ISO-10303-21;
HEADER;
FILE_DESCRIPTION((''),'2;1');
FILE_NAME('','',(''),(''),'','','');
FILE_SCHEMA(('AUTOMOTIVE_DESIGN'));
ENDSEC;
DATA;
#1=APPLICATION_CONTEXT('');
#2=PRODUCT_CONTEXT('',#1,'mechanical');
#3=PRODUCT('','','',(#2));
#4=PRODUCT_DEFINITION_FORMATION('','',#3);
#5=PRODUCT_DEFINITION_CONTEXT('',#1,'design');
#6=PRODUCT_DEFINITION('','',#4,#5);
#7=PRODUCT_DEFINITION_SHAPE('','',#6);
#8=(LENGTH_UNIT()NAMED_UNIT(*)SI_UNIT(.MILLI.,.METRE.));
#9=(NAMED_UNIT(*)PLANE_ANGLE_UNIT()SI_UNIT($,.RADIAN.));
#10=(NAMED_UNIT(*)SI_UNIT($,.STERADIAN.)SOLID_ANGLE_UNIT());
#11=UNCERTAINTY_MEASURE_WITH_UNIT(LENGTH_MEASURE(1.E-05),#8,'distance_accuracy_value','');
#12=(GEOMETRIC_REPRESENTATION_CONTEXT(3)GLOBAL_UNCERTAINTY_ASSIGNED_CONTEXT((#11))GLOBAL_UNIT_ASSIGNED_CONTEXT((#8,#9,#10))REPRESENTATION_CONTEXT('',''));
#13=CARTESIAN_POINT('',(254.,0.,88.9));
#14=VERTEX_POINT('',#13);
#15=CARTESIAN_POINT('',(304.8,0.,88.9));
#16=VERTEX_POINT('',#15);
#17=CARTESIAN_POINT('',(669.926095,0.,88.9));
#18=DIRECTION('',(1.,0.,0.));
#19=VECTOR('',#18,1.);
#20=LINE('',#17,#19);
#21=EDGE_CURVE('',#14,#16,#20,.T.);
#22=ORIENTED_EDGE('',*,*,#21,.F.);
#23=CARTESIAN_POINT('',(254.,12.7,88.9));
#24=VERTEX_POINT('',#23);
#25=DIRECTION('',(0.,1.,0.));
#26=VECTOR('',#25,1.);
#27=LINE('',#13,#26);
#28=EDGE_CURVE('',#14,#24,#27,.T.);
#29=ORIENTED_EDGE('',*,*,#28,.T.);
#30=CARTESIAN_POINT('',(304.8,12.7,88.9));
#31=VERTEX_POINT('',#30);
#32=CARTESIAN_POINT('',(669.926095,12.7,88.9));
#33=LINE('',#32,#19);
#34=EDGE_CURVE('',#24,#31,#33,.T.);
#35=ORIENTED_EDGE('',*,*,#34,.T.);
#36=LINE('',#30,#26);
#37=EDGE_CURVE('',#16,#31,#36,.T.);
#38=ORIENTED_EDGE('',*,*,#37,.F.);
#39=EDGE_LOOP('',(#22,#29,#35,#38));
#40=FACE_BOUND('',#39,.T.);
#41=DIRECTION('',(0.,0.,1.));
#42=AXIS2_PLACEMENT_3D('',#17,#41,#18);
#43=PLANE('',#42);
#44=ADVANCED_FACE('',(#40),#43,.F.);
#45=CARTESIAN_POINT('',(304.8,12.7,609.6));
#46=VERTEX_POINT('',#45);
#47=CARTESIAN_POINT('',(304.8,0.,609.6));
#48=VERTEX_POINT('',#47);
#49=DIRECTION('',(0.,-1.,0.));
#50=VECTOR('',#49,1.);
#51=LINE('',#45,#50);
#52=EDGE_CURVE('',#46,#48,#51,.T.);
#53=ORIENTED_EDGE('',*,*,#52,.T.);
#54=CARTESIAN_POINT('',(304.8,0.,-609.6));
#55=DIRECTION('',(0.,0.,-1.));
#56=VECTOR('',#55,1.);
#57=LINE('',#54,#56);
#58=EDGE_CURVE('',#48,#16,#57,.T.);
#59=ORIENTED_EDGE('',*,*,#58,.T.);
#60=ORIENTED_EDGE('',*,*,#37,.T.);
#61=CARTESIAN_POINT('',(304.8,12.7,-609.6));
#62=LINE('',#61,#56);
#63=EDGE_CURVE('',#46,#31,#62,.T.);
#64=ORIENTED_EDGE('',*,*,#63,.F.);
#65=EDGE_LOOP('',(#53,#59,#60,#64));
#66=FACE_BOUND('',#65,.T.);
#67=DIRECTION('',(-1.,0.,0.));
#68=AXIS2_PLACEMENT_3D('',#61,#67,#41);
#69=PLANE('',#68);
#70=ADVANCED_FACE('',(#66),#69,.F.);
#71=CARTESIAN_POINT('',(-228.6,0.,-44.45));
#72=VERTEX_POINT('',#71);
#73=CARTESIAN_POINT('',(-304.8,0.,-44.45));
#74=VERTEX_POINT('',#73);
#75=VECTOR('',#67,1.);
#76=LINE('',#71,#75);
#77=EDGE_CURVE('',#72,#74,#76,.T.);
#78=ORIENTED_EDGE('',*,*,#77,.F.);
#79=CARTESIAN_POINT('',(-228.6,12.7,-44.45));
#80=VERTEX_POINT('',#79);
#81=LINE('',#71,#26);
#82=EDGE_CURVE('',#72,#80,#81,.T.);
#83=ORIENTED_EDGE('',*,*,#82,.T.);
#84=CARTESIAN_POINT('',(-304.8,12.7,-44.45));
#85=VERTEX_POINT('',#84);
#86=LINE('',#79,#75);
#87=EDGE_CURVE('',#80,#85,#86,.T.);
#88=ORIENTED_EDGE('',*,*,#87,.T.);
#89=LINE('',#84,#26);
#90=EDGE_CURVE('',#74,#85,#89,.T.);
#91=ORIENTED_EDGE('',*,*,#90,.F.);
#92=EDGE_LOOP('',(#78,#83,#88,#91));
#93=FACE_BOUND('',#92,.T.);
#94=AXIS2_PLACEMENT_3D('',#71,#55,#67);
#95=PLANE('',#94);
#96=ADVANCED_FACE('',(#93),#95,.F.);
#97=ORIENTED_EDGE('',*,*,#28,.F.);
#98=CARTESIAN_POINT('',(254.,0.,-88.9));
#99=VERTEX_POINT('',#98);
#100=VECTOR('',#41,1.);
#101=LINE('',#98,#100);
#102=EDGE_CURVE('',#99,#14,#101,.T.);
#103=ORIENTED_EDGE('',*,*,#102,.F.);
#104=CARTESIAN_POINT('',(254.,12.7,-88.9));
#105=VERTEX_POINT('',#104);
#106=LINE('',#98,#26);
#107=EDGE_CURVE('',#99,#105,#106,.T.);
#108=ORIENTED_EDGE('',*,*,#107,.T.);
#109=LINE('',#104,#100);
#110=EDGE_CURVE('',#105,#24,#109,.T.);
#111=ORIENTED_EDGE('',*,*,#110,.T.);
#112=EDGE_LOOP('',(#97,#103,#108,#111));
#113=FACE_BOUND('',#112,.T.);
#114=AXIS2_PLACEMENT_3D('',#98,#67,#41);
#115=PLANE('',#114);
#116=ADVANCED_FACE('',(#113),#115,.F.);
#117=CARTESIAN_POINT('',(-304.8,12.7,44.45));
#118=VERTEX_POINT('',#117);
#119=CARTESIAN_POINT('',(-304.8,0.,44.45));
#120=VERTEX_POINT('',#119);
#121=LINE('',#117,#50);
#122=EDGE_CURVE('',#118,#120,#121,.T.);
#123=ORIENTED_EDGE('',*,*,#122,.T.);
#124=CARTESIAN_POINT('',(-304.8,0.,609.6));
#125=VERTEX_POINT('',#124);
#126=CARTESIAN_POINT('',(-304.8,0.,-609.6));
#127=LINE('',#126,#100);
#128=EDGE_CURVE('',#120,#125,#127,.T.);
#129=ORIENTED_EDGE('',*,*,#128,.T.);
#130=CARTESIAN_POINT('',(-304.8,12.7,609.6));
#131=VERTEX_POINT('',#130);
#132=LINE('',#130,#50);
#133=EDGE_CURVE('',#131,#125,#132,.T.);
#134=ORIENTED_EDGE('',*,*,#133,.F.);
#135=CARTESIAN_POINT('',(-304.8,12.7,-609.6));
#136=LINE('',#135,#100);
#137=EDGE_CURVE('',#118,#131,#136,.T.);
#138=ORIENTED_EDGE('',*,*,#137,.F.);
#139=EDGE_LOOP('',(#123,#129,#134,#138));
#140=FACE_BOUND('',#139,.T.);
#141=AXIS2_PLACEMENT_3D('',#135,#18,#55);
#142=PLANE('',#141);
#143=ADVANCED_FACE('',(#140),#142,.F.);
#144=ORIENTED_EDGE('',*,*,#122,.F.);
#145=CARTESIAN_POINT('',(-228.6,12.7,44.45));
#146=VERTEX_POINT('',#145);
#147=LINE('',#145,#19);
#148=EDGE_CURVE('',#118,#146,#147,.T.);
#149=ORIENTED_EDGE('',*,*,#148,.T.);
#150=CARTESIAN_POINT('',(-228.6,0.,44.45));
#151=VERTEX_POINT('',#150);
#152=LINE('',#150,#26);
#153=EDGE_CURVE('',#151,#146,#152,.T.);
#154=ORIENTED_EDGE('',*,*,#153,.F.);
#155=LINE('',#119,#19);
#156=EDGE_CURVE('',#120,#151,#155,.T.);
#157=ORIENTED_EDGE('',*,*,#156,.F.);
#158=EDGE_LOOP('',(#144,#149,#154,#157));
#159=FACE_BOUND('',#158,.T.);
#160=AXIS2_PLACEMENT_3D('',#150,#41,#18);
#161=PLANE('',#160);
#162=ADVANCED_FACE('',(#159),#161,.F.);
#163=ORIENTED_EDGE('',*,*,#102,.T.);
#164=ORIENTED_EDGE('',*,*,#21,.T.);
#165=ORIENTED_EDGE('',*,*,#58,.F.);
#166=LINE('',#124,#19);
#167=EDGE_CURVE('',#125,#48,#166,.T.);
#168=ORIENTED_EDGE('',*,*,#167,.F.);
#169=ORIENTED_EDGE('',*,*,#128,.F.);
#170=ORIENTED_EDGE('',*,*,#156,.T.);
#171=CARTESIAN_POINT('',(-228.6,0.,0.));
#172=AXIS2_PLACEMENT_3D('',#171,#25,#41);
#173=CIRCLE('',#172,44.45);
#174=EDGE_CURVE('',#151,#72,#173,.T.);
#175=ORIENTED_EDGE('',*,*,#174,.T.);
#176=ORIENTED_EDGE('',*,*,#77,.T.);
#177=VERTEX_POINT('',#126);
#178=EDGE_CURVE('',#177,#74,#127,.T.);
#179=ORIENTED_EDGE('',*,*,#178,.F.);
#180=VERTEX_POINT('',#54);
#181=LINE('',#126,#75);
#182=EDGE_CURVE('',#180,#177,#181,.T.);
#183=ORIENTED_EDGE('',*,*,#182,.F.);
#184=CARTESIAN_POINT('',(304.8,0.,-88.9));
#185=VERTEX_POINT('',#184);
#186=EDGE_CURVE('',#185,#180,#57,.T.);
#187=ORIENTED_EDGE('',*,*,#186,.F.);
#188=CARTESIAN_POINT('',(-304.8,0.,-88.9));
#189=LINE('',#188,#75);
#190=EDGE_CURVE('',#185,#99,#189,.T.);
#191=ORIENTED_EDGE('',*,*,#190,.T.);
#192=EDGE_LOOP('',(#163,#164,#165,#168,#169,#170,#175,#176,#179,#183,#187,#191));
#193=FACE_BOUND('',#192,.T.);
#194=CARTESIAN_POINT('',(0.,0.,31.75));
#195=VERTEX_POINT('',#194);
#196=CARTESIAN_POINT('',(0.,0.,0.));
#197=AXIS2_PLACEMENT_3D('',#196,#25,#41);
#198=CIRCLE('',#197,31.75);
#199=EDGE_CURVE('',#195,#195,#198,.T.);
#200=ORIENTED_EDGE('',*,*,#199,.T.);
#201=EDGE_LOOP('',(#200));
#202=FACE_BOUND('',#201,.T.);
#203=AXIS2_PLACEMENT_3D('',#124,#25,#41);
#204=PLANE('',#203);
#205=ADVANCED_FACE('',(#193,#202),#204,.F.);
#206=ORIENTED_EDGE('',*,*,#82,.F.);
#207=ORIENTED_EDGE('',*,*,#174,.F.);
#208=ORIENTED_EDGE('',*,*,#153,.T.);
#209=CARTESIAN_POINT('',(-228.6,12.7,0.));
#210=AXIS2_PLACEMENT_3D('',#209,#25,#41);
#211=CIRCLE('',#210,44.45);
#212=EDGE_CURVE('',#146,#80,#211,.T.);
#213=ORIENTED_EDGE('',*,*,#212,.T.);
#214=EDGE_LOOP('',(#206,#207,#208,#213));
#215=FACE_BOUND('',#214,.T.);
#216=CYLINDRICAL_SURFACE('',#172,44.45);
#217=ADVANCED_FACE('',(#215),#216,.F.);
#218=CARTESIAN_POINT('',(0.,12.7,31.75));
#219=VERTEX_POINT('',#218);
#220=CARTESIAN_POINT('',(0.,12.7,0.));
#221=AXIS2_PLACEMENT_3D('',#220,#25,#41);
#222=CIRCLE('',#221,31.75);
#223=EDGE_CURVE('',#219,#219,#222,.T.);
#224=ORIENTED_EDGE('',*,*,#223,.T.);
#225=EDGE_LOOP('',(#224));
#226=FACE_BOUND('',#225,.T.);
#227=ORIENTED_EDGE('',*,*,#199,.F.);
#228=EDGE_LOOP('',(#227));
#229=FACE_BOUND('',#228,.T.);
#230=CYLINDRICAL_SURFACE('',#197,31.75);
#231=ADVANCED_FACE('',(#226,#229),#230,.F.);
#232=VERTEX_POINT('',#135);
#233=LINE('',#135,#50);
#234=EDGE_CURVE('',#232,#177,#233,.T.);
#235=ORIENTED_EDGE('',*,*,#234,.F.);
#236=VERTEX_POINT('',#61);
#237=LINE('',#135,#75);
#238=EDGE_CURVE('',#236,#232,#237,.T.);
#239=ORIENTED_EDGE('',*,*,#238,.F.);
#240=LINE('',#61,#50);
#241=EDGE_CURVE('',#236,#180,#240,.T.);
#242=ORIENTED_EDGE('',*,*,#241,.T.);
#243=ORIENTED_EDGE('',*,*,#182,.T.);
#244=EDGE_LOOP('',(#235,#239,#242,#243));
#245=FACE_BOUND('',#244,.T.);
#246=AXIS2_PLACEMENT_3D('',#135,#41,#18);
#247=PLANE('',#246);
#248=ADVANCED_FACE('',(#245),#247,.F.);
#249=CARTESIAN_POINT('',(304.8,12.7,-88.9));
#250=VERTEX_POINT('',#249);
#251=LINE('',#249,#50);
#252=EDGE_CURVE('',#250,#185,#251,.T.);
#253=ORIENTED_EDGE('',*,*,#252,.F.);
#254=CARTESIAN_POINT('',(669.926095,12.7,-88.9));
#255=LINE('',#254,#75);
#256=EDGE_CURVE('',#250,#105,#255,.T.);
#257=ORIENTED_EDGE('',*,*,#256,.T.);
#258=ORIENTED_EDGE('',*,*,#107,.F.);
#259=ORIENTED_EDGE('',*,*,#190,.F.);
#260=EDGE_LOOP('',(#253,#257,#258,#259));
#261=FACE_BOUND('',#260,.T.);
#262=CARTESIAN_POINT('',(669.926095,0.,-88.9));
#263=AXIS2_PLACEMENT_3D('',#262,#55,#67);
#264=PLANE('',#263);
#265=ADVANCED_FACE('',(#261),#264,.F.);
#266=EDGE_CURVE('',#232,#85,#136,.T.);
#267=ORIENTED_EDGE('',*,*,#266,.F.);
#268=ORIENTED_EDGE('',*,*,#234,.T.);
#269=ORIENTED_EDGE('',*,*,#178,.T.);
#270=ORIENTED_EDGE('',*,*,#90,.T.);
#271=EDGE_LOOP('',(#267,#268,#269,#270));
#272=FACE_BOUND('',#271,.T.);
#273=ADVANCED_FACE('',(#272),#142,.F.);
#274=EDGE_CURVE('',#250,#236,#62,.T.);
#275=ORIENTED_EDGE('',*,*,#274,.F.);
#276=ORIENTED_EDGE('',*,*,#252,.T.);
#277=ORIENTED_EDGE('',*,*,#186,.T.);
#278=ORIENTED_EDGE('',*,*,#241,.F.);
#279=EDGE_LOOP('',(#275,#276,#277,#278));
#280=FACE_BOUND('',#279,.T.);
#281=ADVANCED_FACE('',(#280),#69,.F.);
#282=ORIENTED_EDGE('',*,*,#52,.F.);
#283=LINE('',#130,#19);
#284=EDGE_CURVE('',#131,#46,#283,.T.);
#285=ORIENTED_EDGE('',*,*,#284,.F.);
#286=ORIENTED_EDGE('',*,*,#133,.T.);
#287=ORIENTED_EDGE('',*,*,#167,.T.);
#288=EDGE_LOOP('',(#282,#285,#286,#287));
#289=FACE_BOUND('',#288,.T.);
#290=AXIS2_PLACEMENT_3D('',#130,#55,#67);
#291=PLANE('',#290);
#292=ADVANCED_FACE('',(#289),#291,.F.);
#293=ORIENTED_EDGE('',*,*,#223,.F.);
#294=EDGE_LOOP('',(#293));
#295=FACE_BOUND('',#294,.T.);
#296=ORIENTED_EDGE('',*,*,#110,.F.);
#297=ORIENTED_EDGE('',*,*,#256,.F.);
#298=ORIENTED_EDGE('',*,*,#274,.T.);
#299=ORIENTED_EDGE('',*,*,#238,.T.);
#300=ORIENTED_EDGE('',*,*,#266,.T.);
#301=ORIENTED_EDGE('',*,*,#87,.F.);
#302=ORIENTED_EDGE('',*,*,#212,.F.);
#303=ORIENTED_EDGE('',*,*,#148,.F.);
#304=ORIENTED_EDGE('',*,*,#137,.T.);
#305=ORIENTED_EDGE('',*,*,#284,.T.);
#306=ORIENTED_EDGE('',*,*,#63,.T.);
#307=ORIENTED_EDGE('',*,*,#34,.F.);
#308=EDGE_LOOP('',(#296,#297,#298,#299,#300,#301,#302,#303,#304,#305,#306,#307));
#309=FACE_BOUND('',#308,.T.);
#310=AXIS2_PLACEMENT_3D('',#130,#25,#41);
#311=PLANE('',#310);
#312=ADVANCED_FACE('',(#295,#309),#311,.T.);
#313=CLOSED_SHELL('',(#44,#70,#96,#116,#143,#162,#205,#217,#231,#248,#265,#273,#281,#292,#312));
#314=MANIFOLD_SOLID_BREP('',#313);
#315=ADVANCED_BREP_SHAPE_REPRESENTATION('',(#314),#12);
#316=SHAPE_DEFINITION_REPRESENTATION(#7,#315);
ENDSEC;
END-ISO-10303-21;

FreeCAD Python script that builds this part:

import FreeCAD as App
import Part
import Sketcher
Q = App.Units.Quantity

doc = App.newDocument("Part")
body = doc.addObject("PartDesign::Body", "Body")

# Sketch on XZ plane
sketch1 = doc.addObject("Sketcher::SketchObject", "Sketch")
body.addObject(sketch1)
sketch1.AttachmentSupport = (doc.XZ_Plane, [""])
sketch1.MapMode = "FlatFace"
sketch1.addGeometry(Part.LineSegment(App.Vector(-304.8, -609.6, 0), App.Vector(-304.8, 609.6, 0)), False)
sketch1.addGeometry(Part.LineSegment(App.Vector(-304.8, 609.6, 0), App.Vector(304.8, 609.6, 0)), False)
sketch1.addGeometry(Part.LineSegment(App.Vector(304.8, 609.6, 0), App.Vector(304.8, -609.6, 0)), False)
sketch1.addGeometry(Part.LineSegment(App.Vector(304.8, -609.6, 0), App.Vector(-304.8, -609.6, 0)), False)
sketch1.addConstraint(Sketcher.Constraint("Coincident", 0, 2, 1, 1))
sketch1.addConstraint(Sketcher.Constraint("Coincident", 1, 2, 2, 1))
sketch1.addConstraint(Sketcher.Constraint("Coincident", 2, 2, 3, 1))
sketch1.addConstraint(Sketcher.Constraint("Coincident", 3, 2, 0, 1))
sketch1.addConstraint(Sketcher.Constraint("Vertical", 0))
sketch1.addConstraint(Sketcher.Constraint("Horizontal", 1))
sketch1.addConstraint(Sketcher.Constraint("Vertical", 2))
sketch1.addConstraint(Sketcher.Constraint("Horizontal", 3))
sketch1.addConstraint(Sketcher.Constraint("Symmetric", 0, 2, 2, 2, -1, 1))
sketch1.addConstraint(Sketcher.Constraint("DistanceX", 1, 1, 1, 2, Q("24 in")))
sketch1.addConstraint(Sketcher.Constraint("DistanceY", 0, 1, 0, 2, Q("48 in")))
pad1 = doc.addObject("PartDesign::Pad", "Pad")
body.addObject(pad1)
pad1.Profile = sketch1
pad1.Length = Q("0.5 in")
pad1.Reversed = True

# Sketch on XZ plane
sketch2 = doc.addObject("Sketcher::SketchObject", "Sketch001")
body.addObject(sketch2)
sketch2.AttachmentSupport = (doc.XZ_Plane, [""])
sketch2.MapMode = "FlatFace"
sketch2.AttachmentOffset = App.Placement(App.Vector(0, 0, -0.5 * 25.4), App.Rotation())
sketch2.addGeometry(Part.Circle(App.Vector(0, 0, 0), App.Vector(0, 0, 1), 31.75), False)
sketch2.addConstraint(Sketcher.Constraint("Coincident", 0, 3, -1, 1))
sketch2.addConstraint(Sketcher.Constraint("Diameter", 0, Q("2.5 in")))
pocket1 = doc.addObject("PartDesign::Pocket", "Pocket")
body.addObject(pocket1)
pocket1.Profile = sketch2
pocket1.Type = "ThroughAll"
pocket1.Reversed = True

# Sketch on XZ plane
sketch3 = doc.addObject("Sketcher::SketchObject", "Sketch002")
body.addObject(sketch3)
sketch3.AttachmentSupport = (doc.XZ_Plane, [""])
sketch3.MapMode = "FlatFace"
sketch3.AttachmentOffset = App.Placement(App.Vector(0, 0, -0.5 * 25.4), App.Rotation())
sketch3.addGeometry(Part.LineSegment(App.Vector(254, -88.9, 0), App.Vector(254, 88.9, 0)), False)
sketch3.addGeometry(Part.LineSegment(App.Vector(254, 88.9, 0), App.Vector(669.926095, 88.9, 0)), False)
sketch3.addGeometry(Part.LineSegment(App.Vector(669.926095, 88.9, 0), App.Vector(669.926095, -88.9, 0)), False)
sketch3.addGeometry(Part.LineSegment(App.Vector(669.926095, -88.9, 0), App.Vector(254, -88.9, 0)), False)
sketch3.addConstraint(Sketcher.Constraint("Coincident", 0, 2, 1, 1))
sketch3.addConstraint(Sketcher.Constraint("Coincident", 1, 2, 2, 1))
sketch3.addConstraint(Sketcher.Constraint("Coincident", 2, 2, 3, 1))
sketch3.addConstraint(Sketcher.Constraint("Coincident", 3, 2, 0, 1))
sketch3.addConstraint(Sketcher.Constraint("Vertical", 0))
sketch3.addConstraint(Sketcher.Constraint("Horizontal", 1))
sketch3.addConstraint(Sketcher.Constraint("Vertical", 2))
sketch3.addConstraint(Sketcher.Constraint("Horizontal", 3))
sketch3.addConstraint(Sketcher.Constraint("DistanceY", 0, 1, 0, 2, Q("7 in")))
sketch3.addConstraint(Sketcher.Constraint("DistanceX", -1, 1, 0, 2, Q("10 in")))
sketch3.addConstraint(Sketcher.Constraint("DistanceY", -1, 1, 0, 2, Q("3.5 in")))
sketch3.addConstraint(Sketcher.Constraint("DistanceX", 1, 1, 1, 2, Q("415.926095 mm")))
pocket2 = doc.addObject("PartDesign::Pocket", "Pocket001")
body.addObject(pocket2)
pocket2.Profile = sketch3
pocket2.Type = "ThroughAll"
pocket2.Reversed = True

# Sketch on XZ plane
sketch4 = doc.addObject("Sketcher::SketchObject", "Sketch003")
body.addObject(sketch4)
sketch4.AttachmentSupport = (doc.XZ_Plane, [""])
sketch4.MapMode = "FlatFace"
sketch4.AttachmentOffset = App.Placement(App.Vector(0, 0, -0.5 * 25.4), App.Rotation())
sketch4.addGeometry(Part.LineSegment(App.Vector(-409.018217, -44.45, 0), App.Vector(-409.018217, 44.45, 0)), False)
sketch4.addGeometry(Part.LineSegment(App.Vector(-409.018217, 44.45, 0), App.Vector(-228.6, 44.45, 0)), False)
sketch4.addGeometry(Part.LineSegment(App.Vector(-228.6, 44.45, 0), App.Vector(-228.6, -44.45, 0)), False)
sketch4.addGeometry(Part.LineSegment(App.Vector(-228.6, -44.45, 0), App.Vector(-409.018217, -44.45, 0)), False)
sketch4.addConstraint(Sketcher.Constraint("Coincident", 0, 2, 1, 1))
sketch4.addConstraint(Sketcher.Constraint("Coincident", 1, 2, 2, 1))
sketch4.addConstraint(Sketcher.Constraint("Coincident", 2, 2, 3, 1))
sketch4.addConstraint(Sketcher.Constraint("Coincident", 3, 2, 0, 1))
sketch4.addConstraint(Sketcher.Constraint("Vertical", 0))
sketch4.addConstraint(Sketcher.Constraint("Horizontal", 1))
sketch4.addConstraint(Sketcher.Constraint("Vertical", 2))
sketch4.addConstraint(Sketcher.Constraint("Horizontal", 3))
sketch4.addConstraint(Sketcher.Constraint("DistanceY", 0, 1, 0, 2, Q("3.5 in")))
sketch4.addConstraint(Sketcher.Constraint("DistanceX", 1, 2, -1, 1, Q("9 in")))
sketch4.addConstraint(Sketcher.Constraint("DistanceY", -1, 1, 0, 2, Q("1.75 in")))
sketch4.addConstraint(Sketcher.Constraint("DistanceX", 1, 1, 1, 2, Q("180.418217 mm")))
pocket3 = doc.addObject("PartDesign::Pocket", "Pocket002")
body.addObject(pocket3)
pocket3.Profile = sketch4
pocket3.Type = "ThroughAll"
pocket3.Reversed = True

# Sketch on XZ plane
sketch5 = doc.addObject("Sketcher::SketchObject", "Sketch004")
body.addObject(sketch5)
sketch5.AttachmentSupport = (doc.XZ_Plane, [""])
sketch5.MapMode = "FlatFace"
sketch5.AttachmentOffset = App.Placement(App.Vector(0, 0, -0.5 * 25.4), App.Rotation())
sketch5.addGeometry(Part.Circle(App.Vector(-228.6, 0, 0), App.Vector(0, 0, 1), 44.45), False)
sketch5.addConstraint(Sketcher.Constraint("PointOnObject", 0, 3, -1))
sketch5.addConstraint(Sketcher.Constraint("Diameter", 0, Q("3.5 in")))
sketch5.addConstraint(Sketcher.Constraint("DistanceX", 0, 3, -1, 1, Q("9 in")))
pocket4 = doc.addObject("PartDesign::Pocket", "Pocket003")
body.addObject(pocket4)
pocket4.Profile = sketch5
pocket4.Type = "ThroughAll"
pocket4.Reversed = True

doc.recompute()
